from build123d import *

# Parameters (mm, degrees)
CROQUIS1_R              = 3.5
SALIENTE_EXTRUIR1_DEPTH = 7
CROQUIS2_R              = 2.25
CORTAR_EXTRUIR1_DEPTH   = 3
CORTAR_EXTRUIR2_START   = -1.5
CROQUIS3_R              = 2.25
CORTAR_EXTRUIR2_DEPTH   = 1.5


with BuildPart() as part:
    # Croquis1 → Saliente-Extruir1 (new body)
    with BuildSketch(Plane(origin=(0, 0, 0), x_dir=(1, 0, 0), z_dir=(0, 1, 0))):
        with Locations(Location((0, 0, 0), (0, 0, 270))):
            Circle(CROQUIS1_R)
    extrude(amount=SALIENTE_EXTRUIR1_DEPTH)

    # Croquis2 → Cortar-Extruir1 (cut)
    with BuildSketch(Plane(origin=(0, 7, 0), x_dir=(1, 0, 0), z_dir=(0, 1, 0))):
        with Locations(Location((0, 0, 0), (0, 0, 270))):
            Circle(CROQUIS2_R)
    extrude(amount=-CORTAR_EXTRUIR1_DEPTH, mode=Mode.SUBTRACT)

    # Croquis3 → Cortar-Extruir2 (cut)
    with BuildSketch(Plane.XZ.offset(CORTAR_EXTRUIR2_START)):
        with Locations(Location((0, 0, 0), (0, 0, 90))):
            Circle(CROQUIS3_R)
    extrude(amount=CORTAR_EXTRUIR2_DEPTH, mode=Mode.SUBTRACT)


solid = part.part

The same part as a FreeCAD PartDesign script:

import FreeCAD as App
import Part
import Sketcher
from FreeCAD import Vector

doc = App.newDocument("Part")
params = doc.addObject("Spreadsheet::Sheet", "Params")
for row, (alias, value) in enumerate([
    ("sketch1_diameter", "7 mm"),
    ("pad1_length", "7 mm"),
    ("sketch2_diameter", "4.5 mm"),
    ("pocket1_length", "3 mm"),
    ("sketch3_diameter", "4.5 mm"),
    ("pocket2_length", "1.5 mm"),
], start=1):
    params.set(f"A{row}", alias)
    params.set(f"B{row}", "=" + value)
    params.setAlias(f"B{row}", alias)

body = doc.addObject("PartDesign::Body", "Body")

# Sketch on XZ plane
sketch1 = body.newObject("Sketcher::SketchObject", "Sketch")
sketch1.AttachmentSupport = (doc.getObject("XZ_Plane"), [""])
sketch1.MapMode = "FlatFace"
sketch1.addGeometry(Part.Circle(Vector(0, 0, 0), Vector(0, 0, 1), 3.5), False)
sketch1.addConstraint([
    Sketcher.Constraint("Coincident", 0, 3, -1, 1),
    Sketcher.Constraint("Diameter", 0, 7.0),
])
sketch1.setExpression("Constraints[1]", "Params.sketch1_diameter")
pad1 = body.newObject("PartDesign::Pad", "Pad")
pad1.Profile = sketch1
pad1.setExpression("Length", "Params.pad1_length")
pad1.Reversed = True

# Sketch on XZ plane
sketch2 = body.newObject("Sketcher::SketchObject", "Sketch001")
sketch2.AttachmentSupport = (doc.getObject("XZ_Plane"), [""])
sketch2.MapMode = "FlatFace"
sketch2.AttachmentOffset = App.Placement(Vector(0, 0, -7), App.Rotation())
sketch2.addGeometry(Part.Circle(Vector(0, 0, 0), Vector(0, 0, 1), 2.2), False)
sketch2.addConstraint([
    Sketcher.Constraint("Coincident", 0, 3, -1, 1),
    Sketcher.Constraint("Diameter", 0, 4.5),
])
sketch2.setExpression("Constraints[1]", "Params.sketch2_diameter")
pocket1 = body.newObject("PartDesign::Pocket", "Pocket")
pocket1.Profile = sketch2
pocket1.setExpression("Length", "Params.pocket1_length")
pocket1.Reversed = True

# Sketch on XZ plane
sketch3 = body.newObject("Sketcher::SketchObject", "Sketch002")
sketch3.AttachmentSupport = (doc.getObject("XZ_Plane"), [""])
sketch3.MapMode = "FlatFace"
sketch3.AttachmentOffset = App.Placement(Vector(0, 0, -1.5), App.Rotation())
sketch3.addGeometry(Part.Circle(Vector(0, 0, 0), Vector(0, 0, 1), 2.2), False)
sketch3.addConstraint([
    Sketcher.Constraint("Coincident", 0, 3, -1, 1),
    Sketcher.Constraint("Diameter", 0, 4.5),
])
sketch3.setExpression("Constraints[1]", "Params.sketch3_diameter")
pocket2 = body.newObject("PartDesign::Pocket", "Pocket001")
pocket2.Profile = sketch3
pocket2.setExpression("Length", "Params.pocket2_length")
pocket2.Reversed = True

doc.recompute()
